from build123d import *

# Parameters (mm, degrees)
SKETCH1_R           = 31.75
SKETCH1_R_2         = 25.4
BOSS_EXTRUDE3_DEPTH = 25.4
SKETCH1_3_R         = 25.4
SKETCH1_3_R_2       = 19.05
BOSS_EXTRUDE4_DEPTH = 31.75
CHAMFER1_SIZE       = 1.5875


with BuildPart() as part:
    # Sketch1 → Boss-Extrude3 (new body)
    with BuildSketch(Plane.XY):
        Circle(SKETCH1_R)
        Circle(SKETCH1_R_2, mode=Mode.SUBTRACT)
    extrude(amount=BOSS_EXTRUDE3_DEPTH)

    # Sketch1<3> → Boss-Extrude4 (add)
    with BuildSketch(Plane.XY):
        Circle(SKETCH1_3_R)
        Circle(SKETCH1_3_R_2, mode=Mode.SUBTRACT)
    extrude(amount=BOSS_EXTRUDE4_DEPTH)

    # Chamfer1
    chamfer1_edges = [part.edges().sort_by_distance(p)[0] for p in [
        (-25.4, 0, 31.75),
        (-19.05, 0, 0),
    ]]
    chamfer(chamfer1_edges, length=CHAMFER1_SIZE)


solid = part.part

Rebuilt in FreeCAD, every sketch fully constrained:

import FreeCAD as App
import Part
import Sketcher
Q = App.Units.Quantity


def edges_at(feature, points):
    """Names of the edges that pass closest to the given points."""
    edges = feature.Shape.Edges
    near = lambda p: min(range(len(edges)), key=lambda i: edges[i].distToShape(Part.Vertex(*p))[0])
    return sorted({f"Edge{near(p) + 1}" for p in points})

doc = App.newDocument("Part")
body = doc.addObject("PartDesign::Body", "Body")

sketch1 = body.newObject("Sketcher::SketchObject", "Sketch")
sketch1.AttachmentSupport = (doc.getObject("XY_Plane"), [""])
sketch1.MapMode = "FlatFace"
sketch1.addGeometry(Part.Circle(App.Vector(0, 0, 0), App.Vector(0, 0, 1), 32), False)
sketch1.addGeometry(Part.Circle(App.Vector(0, 0, 0), App.Vector(0, 0, 1), 25), False)
sketch1.addConstraint(Sketcher.Constraint("Coincident", 0, 3, -1, 1))
sketch1.addConstraint(Sketcher.Constraint("Coincident", 1, 3, -1, 1))
sketch1.addConstraint(Sketcher.Constraint("Diameter", 1, Q("2 in")))
sketch1.addConstraint(Sketcher.Constraint("Diameter", 0, Q("2.5 in")))
pad1 = body.newObject("PartDesign::Pad", "Pad")
pad1.Profile = sketch1
pad1.Length = Q("1 in")

sketch2 = body.newObject("Sketcher::SketchObject", "Sketch001")
sketch2.AttachmentSupport = (doc.getObject("XY_Plane"), [""])
sketch2.MapMode = "FlatFace"
sketch2.addGeometry(Part.Circle(App.Vector(0, 0, 0), App.Vector(0, 0, 1), 25), False)
sketch2.addGeometry(Part.Circle(App.Vector(0, 0, 0), App.Vector(0, 0, 1), 19), False)
sketch2.addConstraint(Sketcher.Constraint("Coincident", 0, 3, -1, 1))
sketch2.addConstraint(Sketcher.Constraint("Coincident", 1, 3, -1, 1))
sketch2.addConstraint(Sketcher.Constraint("Diameter", 0, Q("2 in")))
sketch2.addConstraint(Sketcher.Constraint("Diameter", 1, Q("1.5 in")))
pad2 = body.newObject("PartDesign::Pad", "Pad001")
pad2.Profile = sketch2
pad2.Length = Q("1.25 in")
doc.recompute()

chamfer = body.newObject("PartDesign::Chamfer", "Chamfer")
chamfer.Base = (pad2, edges_at(pad2, [(-25.4, 0, 31.75), (-19.05, 0, 0)]))
chamfer.Size = Q("0.0625 in")

doc.recompute()
